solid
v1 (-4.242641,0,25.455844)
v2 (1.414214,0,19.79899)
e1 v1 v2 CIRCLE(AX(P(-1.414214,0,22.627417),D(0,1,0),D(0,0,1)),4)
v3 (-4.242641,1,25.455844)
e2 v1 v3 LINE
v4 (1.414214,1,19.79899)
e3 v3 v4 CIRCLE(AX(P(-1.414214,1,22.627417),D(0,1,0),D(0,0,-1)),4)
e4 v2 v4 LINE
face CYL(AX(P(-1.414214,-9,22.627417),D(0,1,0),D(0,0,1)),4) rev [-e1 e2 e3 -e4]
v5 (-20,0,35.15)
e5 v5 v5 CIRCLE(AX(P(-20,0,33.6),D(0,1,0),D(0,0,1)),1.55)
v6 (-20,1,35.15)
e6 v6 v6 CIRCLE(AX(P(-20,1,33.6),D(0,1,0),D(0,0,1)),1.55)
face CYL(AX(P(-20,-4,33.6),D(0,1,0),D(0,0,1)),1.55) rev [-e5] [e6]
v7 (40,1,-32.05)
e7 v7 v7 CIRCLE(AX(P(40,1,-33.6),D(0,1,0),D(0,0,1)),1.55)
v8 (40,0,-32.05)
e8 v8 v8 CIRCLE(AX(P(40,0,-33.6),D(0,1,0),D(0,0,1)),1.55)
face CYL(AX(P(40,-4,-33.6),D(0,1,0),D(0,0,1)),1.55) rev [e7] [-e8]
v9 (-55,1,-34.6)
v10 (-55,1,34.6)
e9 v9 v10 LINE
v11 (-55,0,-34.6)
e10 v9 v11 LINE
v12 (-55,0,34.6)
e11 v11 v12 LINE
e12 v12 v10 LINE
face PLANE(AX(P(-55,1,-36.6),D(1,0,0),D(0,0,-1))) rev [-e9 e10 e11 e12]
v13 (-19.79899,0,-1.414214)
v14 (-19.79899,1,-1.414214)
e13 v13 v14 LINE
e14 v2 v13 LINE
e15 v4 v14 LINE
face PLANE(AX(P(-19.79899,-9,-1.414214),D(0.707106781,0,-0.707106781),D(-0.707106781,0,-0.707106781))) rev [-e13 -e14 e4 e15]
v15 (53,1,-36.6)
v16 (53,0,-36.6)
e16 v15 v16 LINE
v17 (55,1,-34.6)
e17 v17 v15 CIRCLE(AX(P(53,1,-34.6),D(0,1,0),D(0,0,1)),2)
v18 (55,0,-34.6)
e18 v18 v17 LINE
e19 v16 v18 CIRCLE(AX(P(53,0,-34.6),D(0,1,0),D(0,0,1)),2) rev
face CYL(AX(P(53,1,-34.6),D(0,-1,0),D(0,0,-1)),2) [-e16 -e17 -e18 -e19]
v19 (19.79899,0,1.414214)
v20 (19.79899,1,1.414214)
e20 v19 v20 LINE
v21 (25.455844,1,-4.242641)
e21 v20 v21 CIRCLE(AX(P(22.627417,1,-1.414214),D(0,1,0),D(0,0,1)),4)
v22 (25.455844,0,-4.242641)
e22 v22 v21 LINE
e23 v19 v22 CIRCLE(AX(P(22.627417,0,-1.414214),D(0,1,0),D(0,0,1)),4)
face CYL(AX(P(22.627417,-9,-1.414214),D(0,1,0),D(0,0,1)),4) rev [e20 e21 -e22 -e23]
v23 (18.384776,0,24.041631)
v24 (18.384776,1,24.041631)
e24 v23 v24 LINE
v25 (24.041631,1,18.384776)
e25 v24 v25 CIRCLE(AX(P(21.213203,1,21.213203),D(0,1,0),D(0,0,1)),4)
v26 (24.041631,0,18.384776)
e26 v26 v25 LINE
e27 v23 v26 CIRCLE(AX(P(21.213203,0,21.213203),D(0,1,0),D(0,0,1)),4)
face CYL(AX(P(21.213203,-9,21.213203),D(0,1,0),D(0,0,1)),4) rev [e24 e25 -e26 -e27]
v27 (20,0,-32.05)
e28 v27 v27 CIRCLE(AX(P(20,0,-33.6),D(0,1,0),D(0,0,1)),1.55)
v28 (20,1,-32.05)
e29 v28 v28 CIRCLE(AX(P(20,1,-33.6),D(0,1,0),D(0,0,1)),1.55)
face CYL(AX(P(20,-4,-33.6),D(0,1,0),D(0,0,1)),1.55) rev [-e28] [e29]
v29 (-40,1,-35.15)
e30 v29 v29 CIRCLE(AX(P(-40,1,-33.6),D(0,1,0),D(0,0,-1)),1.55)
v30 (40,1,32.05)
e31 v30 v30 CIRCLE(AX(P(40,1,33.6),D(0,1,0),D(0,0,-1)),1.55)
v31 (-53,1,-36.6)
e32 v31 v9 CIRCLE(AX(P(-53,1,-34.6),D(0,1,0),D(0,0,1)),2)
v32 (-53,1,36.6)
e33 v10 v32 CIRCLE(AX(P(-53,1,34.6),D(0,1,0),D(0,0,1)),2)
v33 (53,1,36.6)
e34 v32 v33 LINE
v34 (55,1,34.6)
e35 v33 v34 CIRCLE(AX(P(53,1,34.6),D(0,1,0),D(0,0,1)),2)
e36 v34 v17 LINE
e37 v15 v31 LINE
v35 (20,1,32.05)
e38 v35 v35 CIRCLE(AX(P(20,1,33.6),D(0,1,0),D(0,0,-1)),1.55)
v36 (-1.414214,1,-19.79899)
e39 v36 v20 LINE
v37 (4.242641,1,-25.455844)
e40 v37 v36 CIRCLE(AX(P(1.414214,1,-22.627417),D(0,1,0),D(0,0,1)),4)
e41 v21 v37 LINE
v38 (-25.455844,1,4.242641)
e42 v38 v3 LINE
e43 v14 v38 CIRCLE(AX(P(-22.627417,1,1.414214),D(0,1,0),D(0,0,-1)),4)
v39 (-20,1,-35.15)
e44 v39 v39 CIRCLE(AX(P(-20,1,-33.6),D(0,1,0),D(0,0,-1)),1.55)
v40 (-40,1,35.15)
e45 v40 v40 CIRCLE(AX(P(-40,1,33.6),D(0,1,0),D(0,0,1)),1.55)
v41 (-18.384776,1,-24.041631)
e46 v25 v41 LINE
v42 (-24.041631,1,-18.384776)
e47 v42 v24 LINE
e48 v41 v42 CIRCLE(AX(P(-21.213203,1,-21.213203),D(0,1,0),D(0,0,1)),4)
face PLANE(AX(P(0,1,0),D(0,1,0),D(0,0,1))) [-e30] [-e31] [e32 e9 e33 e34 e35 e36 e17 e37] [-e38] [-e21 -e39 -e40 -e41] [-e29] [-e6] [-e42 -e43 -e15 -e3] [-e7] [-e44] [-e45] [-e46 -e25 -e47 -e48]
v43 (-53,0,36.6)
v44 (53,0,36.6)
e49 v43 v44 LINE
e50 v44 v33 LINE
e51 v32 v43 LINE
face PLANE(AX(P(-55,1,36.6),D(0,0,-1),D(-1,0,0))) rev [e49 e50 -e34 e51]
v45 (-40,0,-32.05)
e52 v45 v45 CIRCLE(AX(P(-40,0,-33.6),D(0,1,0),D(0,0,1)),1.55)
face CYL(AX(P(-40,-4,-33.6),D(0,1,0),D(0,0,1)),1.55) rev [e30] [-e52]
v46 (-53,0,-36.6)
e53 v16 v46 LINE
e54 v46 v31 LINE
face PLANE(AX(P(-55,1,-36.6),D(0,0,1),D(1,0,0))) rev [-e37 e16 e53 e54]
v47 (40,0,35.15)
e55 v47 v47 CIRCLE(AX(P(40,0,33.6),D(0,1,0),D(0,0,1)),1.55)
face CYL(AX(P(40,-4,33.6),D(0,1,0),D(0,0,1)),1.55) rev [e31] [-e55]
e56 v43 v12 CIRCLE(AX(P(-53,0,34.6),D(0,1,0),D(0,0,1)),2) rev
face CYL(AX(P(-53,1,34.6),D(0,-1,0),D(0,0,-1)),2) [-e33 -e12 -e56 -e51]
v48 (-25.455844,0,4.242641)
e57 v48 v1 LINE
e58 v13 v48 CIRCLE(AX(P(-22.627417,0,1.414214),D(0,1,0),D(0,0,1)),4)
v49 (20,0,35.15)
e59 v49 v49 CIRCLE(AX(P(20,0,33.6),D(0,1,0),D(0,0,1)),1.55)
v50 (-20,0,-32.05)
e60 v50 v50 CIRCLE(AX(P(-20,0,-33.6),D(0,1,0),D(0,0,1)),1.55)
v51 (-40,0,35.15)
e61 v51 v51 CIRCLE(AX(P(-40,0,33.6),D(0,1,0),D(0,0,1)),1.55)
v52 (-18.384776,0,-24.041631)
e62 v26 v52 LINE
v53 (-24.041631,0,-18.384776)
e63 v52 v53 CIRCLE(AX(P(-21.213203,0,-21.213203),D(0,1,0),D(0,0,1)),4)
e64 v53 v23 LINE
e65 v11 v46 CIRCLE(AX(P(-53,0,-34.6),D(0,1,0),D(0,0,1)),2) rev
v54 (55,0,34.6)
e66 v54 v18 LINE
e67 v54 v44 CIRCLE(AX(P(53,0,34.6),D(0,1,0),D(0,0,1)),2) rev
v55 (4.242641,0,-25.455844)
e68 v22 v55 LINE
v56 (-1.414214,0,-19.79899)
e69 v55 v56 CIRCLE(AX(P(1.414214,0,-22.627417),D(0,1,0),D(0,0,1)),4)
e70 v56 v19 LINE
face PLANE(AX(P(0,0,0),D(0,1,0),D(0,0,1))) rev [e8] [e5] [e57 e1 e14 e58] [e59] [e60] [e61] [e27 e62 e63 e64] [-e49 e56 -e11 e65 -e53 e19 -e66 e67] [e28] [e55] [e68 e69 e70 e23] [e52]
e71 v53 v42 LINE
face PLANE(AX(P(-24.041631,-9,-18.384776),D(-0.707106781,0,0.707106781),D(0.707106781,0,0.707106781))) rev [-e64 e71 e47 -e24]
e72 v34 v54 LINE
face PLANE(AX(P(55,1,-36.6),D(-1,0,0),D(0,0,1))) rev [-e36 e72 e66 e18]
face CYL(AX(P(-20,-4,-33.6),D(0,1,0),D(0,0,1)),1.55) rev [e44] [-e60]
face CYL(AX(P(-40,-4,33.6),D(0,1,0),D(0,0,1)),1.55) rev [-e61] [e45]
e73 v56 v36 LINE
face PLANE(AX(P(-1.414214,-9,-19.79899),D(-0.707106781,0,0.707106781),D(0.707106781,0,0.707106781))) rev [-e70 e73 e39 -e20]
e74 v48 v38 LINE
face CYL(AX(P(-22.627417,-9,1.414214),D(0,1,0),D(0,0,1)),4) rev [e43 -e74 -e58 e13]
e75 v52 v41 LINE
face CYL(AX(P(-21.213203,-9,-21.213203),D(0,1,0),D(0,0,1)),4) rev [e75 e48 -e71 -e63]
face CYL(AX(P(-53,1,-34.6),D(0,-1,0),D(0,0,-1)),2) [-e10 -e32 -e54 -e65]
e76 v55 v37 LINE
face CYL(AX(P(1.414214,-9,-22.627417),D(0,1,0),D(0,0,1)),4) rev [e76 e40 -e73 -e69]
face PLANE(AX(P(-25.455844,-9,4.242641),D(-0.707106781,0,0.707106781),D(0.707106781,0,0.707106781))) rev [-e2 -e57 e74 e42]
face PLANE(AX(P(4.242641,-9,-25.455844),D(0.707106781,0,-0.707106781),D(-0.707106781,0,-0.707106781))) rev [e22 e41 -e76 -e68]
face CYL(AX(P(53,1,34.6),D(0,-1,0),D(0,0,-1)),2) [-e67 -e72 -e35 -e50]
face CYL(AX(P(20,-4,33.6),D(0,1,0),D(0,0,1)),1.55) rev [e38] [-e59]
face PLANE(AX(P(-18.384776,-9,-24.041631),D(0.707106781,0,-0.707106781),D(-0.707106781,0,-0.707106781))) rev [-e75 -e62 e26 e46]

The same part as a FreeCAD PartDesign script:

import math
import FreeCAD as App
import Part
import Sketcher
Q = App.Units.Quantity


def edges_at(feature, points):
    """Names of the edges that pass closest to the given points."""
    edges = feature.Shape.Edges
    near = lambda p: min(range(len(edges)), key=lambda i: edges[i].distToShape(Part.Vertex(*p))[0])
    return sorted({f"Edge{near(p) + 1}" for p in points})


def add_polygon(sketch, points):
    """Adds a closed chain of lines whose ends are joined by coincident constraints."""
    first, n = sketch.GeometryCount, len(points)
    for a, b in zip(points, points[1:] + points[:1]):
        sketch.addGeometry(Part.LineSegment(App.Vector(*a, 0), App.Vector(*b, 0)), False)
    for i in range(n):
        sketch.addConstraint(Sketcher.Constraint("Coincident", first + i, 2, first + (i + 1) % n, 1))

doc = App.newDocument("Part")
body = doc.addObject("PartDesign::Body", "Body")

# Sketch on XZ plane
sketch1 = body.newObject("Sketcher::SketchObject", "Sketch")
sketch1.AttachmentSupport = (doc.getObject("XZ_Plane"), [""])
sketch1.MapMode = "FlatFace"
add_polygon(sketch1, [(-55, -37), (-55, 37), (55, 37), (55, -37)])  # lines 0-3
sketch1.addConstraint([
    Sketcher.Constraint("Vertical", 0),
    Sketcher.Constraint("Horizontal", 1),
    Sketcher.Constraint("Vertical", 2),
    Sketcher.Constraint("Horizontal", 3),
    Sketcher.Constraint("Symmetric", 0, 2, 2, 2, -1, 1),
    Sketcher.Constraint("DistanceX", 1, 1, 1, 2, 110.0),
    Sketcher.Constraint("DistanceY", 0, 1, 0, 2, 73.2),
])
pad1 = body.newObject("PartDesign::Pad", "Pad")
pad1.Profile = sketch1
pad1.Length = 1
pad1.Reversed = True

# Sketch on XZ plane
sketch2 = body.newObject("Sketcher::SketchObject", "Sketch001")
sketch2.AttachmentSupport = (doc.getObject("XZ_Plane"), [""])
sketch2.MapMode = "FlatFace"
sketch2.AttachmentOffset = App.Placement(App.Vector(0, 0, -1), App.Rotation())
sketch2.addGeometry([
    Part.Circle(App.Vector(20, -33.6, 0), App.Vector(0, 0, 1), 1.6),  # 0
    Part.Circle(App.Vector(40, -33.6, 0), App.Vector(0, 0, 1), 1.6),  # 1
    Part.Circle(App.Vector(40, 33.6, 0), App.Vector(0, 0, 1), 1.6),  # 2
    Part.Circle(App.Vector(20, 33.6, 0), App.Vector(0, 0, 1), 1.6),  # 3
    Part.Circle(App.Vector(-20, 33.6, 0), App.Vector(0, 0, 1), 1.6),  # 4
    Part.Circle(App.Vector(-40, 33.6, 0), App.Vector(0, 0, 1), 1.6),  # 5
    Part.Circle(App.Vector(-40, -33.6, 0), App.Vector(0, 0, 1), 1.6),  # 6
    Part.Circle(App.Vector(-20, -33.6, 0), App.Vector(0, 0, 1), 1.6),  # 7
], False)
sketch2.addConstraint([
    Sketcher.Constraint("Equal", 0, 1),
    Sketcher.Constraint("Equal", 1, 2),
    Sketcher.Constraint("Equal", 2, 3),
    Sketcher.Constraint("Equal", 3, 4),
    Sketcher.Constraint("Equal", 4, 5),
    Sketcher.Constraint("Equal", 5, 6),
    Sketcher.Constraint("Equal", 6, 7),
    Sketcher.Constraint("Symmetric", 0, 3, 4, 3, -1, 1),
    Sketcher.Constraint("Symmetric", 1, 3, 5, 3, -1, 1),
    Sketcher.Constraint("Symmetric", 2, 3, 6, 3, -1, 1),
    Sketcher.Constraint("Symmetric", 3, 3, 7, 3, -1, 1),
    Sketcher.Constraint("Symmetric", 3, 3, 4, 3, -2),
    Sketcher.Constraint("Symmetric", 2, 3, 5, 3, -2),
    Sketcher.Constraint("Horizontal", 0, 3, 1, 3),
    Sketcher.Constraint("Diameter", 0, 3.1),
    Sketcher.Constraint("DistanceX", -1, 1, 0, 3, 20.0),
    Sketcher.Constraint("DistanceX", -1, 1, 1, 3, 40.0),
    Sketcher.Constraint("DistanceY", 0, 3, -1, 1, 33.6),
])
pocket1 = body.newObject("PartDesign::Pocket", "Pocket")
pocket1.Profile = sketch2
pocket1.Length = 5
pocket1.Reversed = True
doc.recompute()

fillet = body.newObject("PartDesign::Fillet", "Fillet")
fillet.Base = (pocket1, edges_at(pocket1, [
    (55, 0.5, 36.6),
    (-55, 0.5, 36.6),
    (-55, 0.5, -36.6),
    (55, 0.5, -36.6),
]))
fillet.Radius = 2

# Sketch on XZ plane
sketch3 = body.newObject("Sketcher::SketchObject", "Sketch002")
sketch3.AttachmentSupport = (doc.getObject("XZ_Plane"), [""])
sketch3.MapMode = "FlatFace"
sketch3.AttachmentOffset = App.Placement(App.Vector(0, 0, -1), App.Rotation())
sketch3.addGeometry([
    Part.LineSegment(App.Vector(24, 18.4, 0), App.Vector(-18.4, -24, 0)),  # 0
    Part.ArcOfCircle(Part.Circle(App.Vector(-21.2, -21.2, 0), App.Vector(0, 0, 1), 4), math.radians(135), math.radians(315)),  # 1
    Part.LineSegment(App.Vector(-24, -18.4, 0), App.Vector(18.4, 24, 0)),  # 2
    Part.ArcOfCircle(Part.Circle(App.Vector(21.2, 21.2, 0), App.Vector(0, 0, 1), 4), math.radians(-45), math.radians(135)),  # 3
    Part.LineSegment(App.Vector(25.5, -4.2, 0), App.Vector(4.2, -25.5, 0)),  # 4
    Part.ArcOfCircle(Part.Circle(App.Vector(1.4, -22.6, 0), App.Vector(0, 0, 1), 4), math.radians(135), math.radians(315)),  # 5
    Part.LineSegment(App.Vector(-1.4, -19.8, 0), App.Vector(19.8, 1.4, 0)),  # 6
    Part.ArcOfCircle(Part.Circle(App.Vector(22.6, -1.4, 0), App.Vector(0, 0, 1), 4), math.radians(-45), math.radians(135)),  # 7
    Part.LineSegment(App.Vector(-25.5, 4.2, 0), App.Vector(-4.2, 25.5, 0)),  # 8
    Part.ArcOfCircle(Part.Circle(App.Vector(-1.4, 22.6, 0), App.Vector(0, 0, 1), 4), math.radians(-45), math.radians(135)),  # 9
    Part.LineSegment(App.Vector(1.4, 19.8, 0), App.Vector(-19.8, -1.4, 0)),  # 10
    Part.ArcOfCircle(Part.Circle(App.Vector(-22.6, 1.4, 0), App.Vector(0, 0, 1), 4), math.radians(135), math.radians(315)),  # 11
], False)
sketch3.addConstraint([
    Sketcher.Constraint("Tangent", 0, 2, 1, 2),
    Sketcher.Constraint("Tangent", 1, 1, 2, 1),
    Sketcher.Constraint("Tangent", 2, 2, 3, 2),
    Sketcher.Constraint("Tangent", 3, 1, 0, 1),
    Sketcher.Constraint("Tangent", 4, 2, 5, 2),
    Sketcher.Constraint("Tangent", 5, 1, 6, 1),
    Sketcher.Constraint("Tangent", 6, 2, 7, 2),
    Sketcher.Constraint("Tangent", 7, 1, 4, 1),
    Sketcher.Constraint("Tangent", 8, 2, 9, 2),
    Sketcher.Constraint("Tangent", 9, 1, 10, 1),
    Sketcher.Constraint("Tangent", 10, 2, 11, 2),
    Sketcher.Constraint("Tangent", 11, 1, 8, 1),
    Sketcher.Constraint("Equal", 1, 3),
    Sketcher.Constraint("Equal", 3, 5),
    Sketcher.Constraint("Equal", 5, 7),
    Sketcher.Constraint("Equal", 7, 9),
    Sketcher.Constraint("Equal", 9, 11),
    Sketcher.Constraint("Symmetric", 1, 3, 3, 3, -1, 1),
    Sketcher.Constraint("Symmetric", 5, 3, 9, 3, -1, 1),
    Sketcher.Constraint("Symmetric", 7, 3, 11, 3, -1, 1),
    Sketcher.Constraint("Parallel", 2, 4),
    Sketcher.Constraint("Horizontal", 11, 3, 6, 2),
    Sketcher.Constraint("Vertical", 9, 3, 5, 1),
    Sketcher.Constraint("Radius", 1, 4.0),
    Sketcher.Constraint("Angle", 0, Q("-135 deg")),
    Sketcher.Constraint("Distance", 0, 60.0),
    Sketcher.Constraint("Distance", 4, 30.0),
])
pocket2 = body.newObject("PartDesign::Pocket", "Pocket001")
pocket2.Profile = sketch3
pocket2.Length = 10
pocket2.Reversed = True

doc.recompute()
